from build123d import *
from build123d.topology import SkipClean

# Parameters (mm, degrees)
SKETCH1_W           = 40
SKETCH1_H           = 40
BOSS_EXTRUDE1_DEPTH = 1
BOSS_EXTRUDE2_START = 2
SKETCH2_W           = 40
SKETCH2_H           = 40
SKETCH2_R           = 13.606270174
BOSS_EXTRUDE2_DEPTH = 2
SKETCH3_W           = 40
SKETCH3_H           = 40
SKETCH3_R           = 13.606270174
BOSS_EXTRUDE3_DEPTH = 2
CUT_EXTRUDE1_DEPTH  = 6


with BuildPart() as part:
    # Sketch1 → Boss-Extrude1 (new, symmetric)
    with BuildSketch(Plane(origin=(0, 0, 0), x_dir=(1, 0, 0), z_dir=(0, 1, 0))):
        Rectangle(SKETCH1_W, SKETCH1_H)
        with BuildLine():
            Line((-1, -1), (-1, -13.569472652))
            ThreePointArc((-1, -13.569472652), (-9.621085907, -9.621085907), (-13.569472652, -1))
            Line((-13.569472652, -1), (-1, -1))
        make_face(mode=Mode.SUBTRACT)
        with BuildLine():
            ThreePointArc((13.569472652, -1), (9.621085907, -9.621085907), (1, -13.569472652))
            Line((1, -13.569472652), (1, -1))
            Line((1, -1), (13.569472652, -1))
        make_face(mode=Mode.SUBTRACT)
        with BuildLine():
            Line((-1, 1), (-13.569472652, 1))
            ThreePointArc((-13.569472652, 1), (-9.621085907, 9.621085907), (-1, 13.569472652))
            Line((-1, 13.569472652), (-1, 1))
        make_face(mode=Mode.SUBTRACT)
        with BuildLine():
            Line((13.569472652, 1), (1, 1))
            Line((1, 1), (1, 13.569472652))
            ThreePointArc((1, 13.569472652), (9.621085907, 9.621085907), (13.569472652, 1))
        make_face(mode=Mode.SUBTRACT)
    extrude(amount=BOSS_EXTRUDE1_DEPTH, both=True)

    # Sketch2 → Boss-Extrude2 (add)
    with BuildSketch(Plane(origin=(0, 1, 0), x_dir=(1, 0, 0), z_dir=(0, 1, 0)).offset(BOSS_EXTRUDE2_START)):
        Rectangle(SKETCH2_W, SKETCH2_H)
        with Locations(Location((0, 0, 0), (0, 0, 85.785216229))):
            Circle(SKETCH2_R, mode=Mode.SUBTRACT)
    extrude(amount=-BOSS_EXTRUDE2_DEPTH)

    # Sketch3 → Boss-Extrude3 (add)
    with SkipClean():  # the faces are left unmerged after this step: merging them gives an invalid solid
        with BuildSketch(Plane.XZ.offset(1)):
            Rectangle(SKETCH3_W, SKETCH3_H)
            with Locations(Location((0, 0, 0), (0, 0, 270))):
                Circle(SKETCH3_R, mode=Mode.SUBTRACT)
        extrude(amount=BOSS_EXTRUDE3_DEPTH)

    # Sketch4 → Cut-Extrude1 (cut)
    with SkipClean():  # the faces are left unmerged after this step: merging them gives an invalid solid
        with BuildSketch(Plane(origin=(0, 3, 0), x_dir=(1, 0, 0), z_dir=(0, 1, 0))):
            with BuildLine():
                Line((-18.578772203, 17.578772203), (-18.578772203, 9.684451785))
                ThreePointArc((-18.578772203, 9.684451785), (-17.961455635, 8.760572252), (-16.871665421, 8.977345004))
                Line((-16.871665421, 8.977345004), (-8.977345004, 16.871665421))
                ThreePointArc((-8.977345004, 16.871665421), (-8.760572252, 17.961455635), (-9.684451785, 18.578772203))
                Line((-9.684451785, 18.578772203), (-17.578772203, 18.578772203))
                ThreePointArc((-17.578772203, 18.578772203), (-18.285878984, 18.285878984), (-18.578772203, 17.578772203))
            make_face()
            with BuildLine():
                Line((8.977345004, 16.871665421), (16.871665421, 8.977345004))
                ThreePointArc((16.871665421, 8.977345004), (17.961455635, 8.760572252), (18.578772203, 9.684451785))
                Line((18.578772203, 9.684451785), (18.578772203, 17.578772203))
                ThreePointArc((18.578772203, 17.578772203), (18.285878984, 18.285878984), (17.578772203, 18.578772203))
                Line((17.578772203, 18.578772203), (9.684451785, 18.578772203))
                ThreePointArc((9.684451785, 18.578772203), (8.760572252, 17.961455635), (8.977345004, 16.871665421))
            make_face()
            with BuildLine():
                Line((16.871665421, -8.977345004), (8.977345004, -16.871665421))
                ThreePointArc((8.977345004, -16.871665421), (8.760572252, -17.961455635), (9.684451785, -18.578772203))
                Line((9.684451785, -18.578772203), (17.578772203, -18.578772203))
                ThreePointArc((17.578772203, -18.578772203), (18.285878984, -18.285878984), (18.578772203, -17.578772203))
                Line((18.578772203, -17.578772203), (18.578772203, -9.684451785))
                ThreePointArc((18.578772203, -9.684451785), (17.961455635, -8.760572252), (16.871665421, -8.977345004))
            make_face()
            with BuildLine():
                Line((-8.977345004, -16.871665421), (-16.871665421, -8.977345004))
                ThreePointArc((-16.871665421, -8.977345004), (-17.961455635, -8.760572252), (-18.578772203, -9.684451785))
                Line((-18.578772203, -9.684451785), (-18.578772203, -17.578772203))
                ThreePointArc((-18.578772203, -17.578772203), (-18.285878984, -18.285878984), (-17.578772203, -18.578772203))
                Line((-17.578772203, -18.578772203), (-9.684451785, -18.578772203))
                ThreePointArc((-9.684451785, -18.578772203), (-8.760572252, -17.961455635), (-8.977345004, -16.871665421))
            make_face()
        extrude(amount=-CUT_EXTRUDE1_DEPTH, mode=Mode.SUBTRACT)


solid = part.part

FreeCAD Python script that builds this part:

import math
import FreeCAD as App
import Part
import Sketcher
from FreeCAD import Vector


def add_polygon(sketch, points):
    """Adds a closed chain of lines whose ends are joined by coincident constraints."""
    first, n = sketch.GeometryCount, len(points)
    for a, b in zip(points, points[1:] + points[:1]):
        sketch.addGeometry(Part.LineSegment(App.Vector(*a, 0), App.Vector(*b, 0)), False)
    for i in range(n):
        sketch.addConstraint(Sketcher.Constraint("Coincident", first + i, 2, first + (i + 1) % n, 1))

doc = App.newDocument("Part")
body = doc.addObject("PartDesign::Body", "Body")

# Sketch on XZ plane
sketch1 = body.newObject("Sketcher::SketchObject", "Sketch")
sketch1.AttachmentSupport = (doc.getObject("XZ_Plane"), [""])
sketch1.MapMode = "FlatFace"
add_polygon(sketch1, [(-20, -20), (-20, 20), (20, 20), (20, -20)])  # lines 0-3
sketch1.addGeometry(Part.LineSegment(Vector(-13.569473, 1, 0), Vector(-1, 1, 0)), False)  # 4
sketch1.addGeometry(Part.LineSegment(Vector(-1, 1, 0), Vector(-1, 13.569473, 0)), False)  # 5
sketch1.addGeometry(Part.ArcOfCircle(Part.Circle(Vector(0, 0, 0), Vector(0, 0, 1), 13.60627), math.radians(94.214784), math.radians(175.785216)), False)  # 6
sketch1.addGeometry(Part.LineSegment(Vector(1, 1, 0), Vector(13.569473, 1, 0)), False)  # 7
sketch1.addGeometry(Part.ArcOfCircle(Part.Circle(Vector(0, 0, 0), Vector(0, 0, 1), 13.60627), math.radians(4.214784), math.radians(85.785216)), False)  # 8
sketch1.addGeometry(Part.LineSegment(Vector(1, 13.569473, 0), Vector(1, 1, 0)), False)  # 9
sketch1.addGeometry(Part.LineSegment(Vector(-1, -13.569473, 0), Vector(-1, -1, 0)), False)  # 10
sketch1.addGeometry(Part.LineSegment(Vector(-1, -1, 0), Vector(-13.569473, -1, 0)), False)  # 11
sketch1.addGeometry(Part.ArcOfCircle(Part.Circle(Vector(0, 0, 0), Vector(0, 0, 1), 13.60627), math.radians(-175.785216), math.radians(-94.214784)), False)  # 12
sketch1.addGeometry(Part.ArcOfCircle(Part.Circle(Vector(0, 0, 0), Vector(0, 0, 1), 13.60627), math.radians(-85.785216), math.radians(-4.214784)), False)  # 13
sketch1.addGeometry(Part.LineSegment(Vector(13.569473, -1, 0), Vector(1, -1, 0)), False)  # 14
sketch1.addGeometry(Part.LineSegment(Vector(1, -1, 0), Vector(1, -13.569473, 0)), False)  # 15
sketch1.addConstraint([
    Sketcher.Constraint("Coincident", 4, 2, 5, 1),
    Sketcher.Constraint("Coincident", 5, 2, 6, 1),
    Sketcher.Constraint("Coincident", 6, 2, 4, 1),
    Sketcher.Constraint("Coincident", 7, 2, 8, 1),
    Sketcher.Constraint("Coincident", 8, 2, 9, 1),
    Sketcher.Constraint("Coincident", 9, 2, 7, 1),
    Sketcher.Constraint("Coincident", 10, 2, 11, 1),
    Sketcher.Constraint("Coincident", 11, 2, 12, 1),
    Sketcher.Constraint("Coincident", 12, 2, 10, 1),
    Sketcher.Constraint("Coincident", 13, 2, 14, 1),
    Sketcher.Constraint("Coincident", 14, 2, 15, 1),
    Sketcher.Constraint("Coincident", 15, 2, 13, 1),
    Sketcher.Constraint("Vertical", 0),
    Sketcher.Constraint("Horizontal", 1),
    Sketcher.Constraint("Vertical", 2),
    Sketcher.Constraint("Horizontal", 3),
    Sketcher.Constraint("Horizontal", 4),
    Sketcher.Constraint("Vertical", 5),
    Sketcher.Constraint("Horizontal", 7),
    Sketcher.Constraint("Vertical", 9),
    Sketcher.Constraint("Vertical", 10),
    Sketcher.Constraint("Horizontal", 11),
    Sketcher.Constraint("Horizontal", 14),
    Sketcher.Constraint("Vertical", 15),
    Sketcher.Constraint("Coincident", 6, 3, -1, 1),
    Sketcher.Constraint("Coincident", 8, 3, -1, 1),
    Sketcher.Constraint("Coincident", 12, 3, -1, 1),
    Sketcher.Constraint("Coincident", 13, 3, -1, 1),
    Sketcher.Constraint("Equal", 6, 8),
    Sketcher.Constraint("Equal", 8, 12),
    Sketcher.Constraint("Equal", 12, 13),
    Sketcher.Constraint("Symmetric", 0, 2, 2, 2, -1, 1),
    Sketcher.Constraint("Symmetric", 9, 2, 10, 2, -1, 1),
    Sketcher.Constraint("Symmetric", 4, 2, 14, 2, -1, 1),
    Sketcher.Constraint("Symmetric", 4, 2, 9, 2, -2),
    Sketcher.Constraint("Equal", 3, 0),
    Sketcher.Constraint("Equal", 14, 5),
    Sketcher.Constraint("DistanceX", 1, 1, 1, 2, 40.0),
    Sketcher.Constraint("DistanceX", 4, 2, -1, 1, 1.0),
    Sketcher.Constraint("Radius", 6, 13.60627),
])
pad1 = body.newObject("PartDesign::Pad", "Pad")
pad1.Profile = sketch1
pad1.Length = 2
pad1.Midplane = True

# Sketch on XZ plane
sketch2 = body.newObject("Sketcher::SketchObject", "Sketch001")
sketch2.AttachmentSupport = (doc.getObject("XZ_Plane"), [""])
sketch2.MapMode = "FlatFace"
sketch2.AttachmentOffset = App.Placement(Vector(0, 0, -3), App.Rotation())
add_polygon(sketch2, [(-20, -20), (-20, 20), (20, 20), (20, -20)])  # lines 0-3
sketch2.addGeometry(Part.Circle(Vector(0, 0, 0), Vector(0, 0, 1), 13.60627), False)  # 4
sketch2.addConstraint([
    Sketcher.Constraint("Vertical", 0),
    Sketcher.Constraint("Horizontal", 1),
    Sketcher.Constraint("Vertical", 2),
    Sketcher.Constraint("Horizontal", 3),
    Sketcher.Constraint("Coincident", 4, 3, -1, 1),
    Sketcher.Constraint("Symmetric", 0, 2, 2, 2, -1, 1),
    Sketcher.Constraint("Equal", 3, 0),
    Sketcher.Constraint("DistanceX", 1, 1, 1, 2, 40.0),
    Sketcher.Constraint("Diameter", 4, 27.21254),
])
pad2 = body.newObject("PartDesign::Pad", "Pad001")
pad2.Profile = sketch2
pad2.Length = 2

# Sketch on XZ plane
sketch3 = body.newObject("Sketcher::SketchObject", "Sketch002")
sketch3.AttachmentSupport = (doc.getObject("XZ_Plane"), [""])
sketch3.MapMode = "FlatFace"
sketch3.AttachmentOffset = App.Placement(Vector(0, 0, 1), App.Rotation())
add_polygon(sketch3, [(-20, 20), (-20, -20), (20, -20), (20, 20)])  # lines 0-3
sketch3.addGeometry(Part.Circle(Vector(0, 0, 0), Vector(0, 0, 1), 13.60627), False)  # 4
sketch3.addConstraint([
    Sketcher.Constraint("Vertical", 0),
    Sketcher.Constraint("Horizontal", 1),
    Sketcher.Constraint("Vertical", 2),
    Sketcher.Constraint("Horizontal", 3),
    Sketcher.Constraint("Coincident", 4, 3, -1, 1),
    Sketcher.Constraint("Symmetric", 0, 2, 2, 2, -1, 1),
    Sketcher.Constraint("Equal", 3, 0),
    Sketcher.Constraint("DistanceX", 1, 1, 1, 2, 40.0),
    Sketcher.Constraint("Diameter", 4, 27.21254),
])
pad3 = body.newObject("PartDesign::Pad", "Pad002")
pad3.Profile = sketch3
pad3.Length = 2

# Sketch on XZ plane
sketch4 = body.newObject("Sketcher::SketchObject", "Sketch003")
sketch4.AttachmentSupport = (doc.getObject("XZ_Plane"), [""])
sketch4.MapMode = "FlatFace"
sketch4.AttachmentOffset = App.Placement(Vector(0, 0, -3), App.Rotation())
sketch4.addGeometry([
    Part.LineSegment(Vector(-18.578772, -17.578772, 0), Vector(-18.578772, -9.684452, 0)),  # 0
    Part.ArcOfCircle(Part.Circle(Vector(-17.578772, -9.684452, 0), Vector(0, 0, 1), 1), math.radians(45), math.radians(180)),  # 1
    Part.LineSegment(Vector(-16.871665, -8.977345, 0), Vector(-8.977345, -16.871665, 0)),  # 2
    Part.ArcOfCircle(Part.Circle(Vector(-9.684452, -17.578772, 0), Vector(0, 0, 1), 1), math.radians(-90), math.radians(45)),  # 3
    Part.LineSegment(Vector(-9.684452, -18.578772, 0), Vector(-17.578772, -18.578772, 0)),  # 4
    Part.ArcOfCircle(Part.Circle(Vector(-17.578772, -17.578772, 0), Vector(0, 0, 1), 1), math.radians(-180), math.radians(-90)),  # 5
    Part.LineSegment(Vector(8.977345, -16.871665, 0), Vector(16.871665, -8.977345, 0)),  # 6
    Part.ArcOfCircle(Part.Circle(Vector(17.578772, -9.684452, 0), Vector(0, 0, 1), 1), math.radians(0), math.radians(135)),  # 7
    Part.LineSegment(Vector(18.578772, -9.684452, 0), Vector(18.578772, -17.578772, 0)),  # 8
    Part.ArcOfCircle(Part.Circle(Vector(17.578772, -17.578772, 0), Vector(0, 0, 1), 1), math.radians(-90), math.radians(0)),  # 9
    Part.LineSegment(Vector(17.578772, -18.578772, 0), Vector(9.684452, -18.578772, 0)),  # 10
    Part.ArcOfCircle(Part.Circle(Vector(9.684452, -17.578772, 0), Vector(0, 0, 1), 1), math.radians(135), math.radians(270)),  # 11
    Part.LineSegment(Vector(16.871665, 8.977345, 0), Vector(8.977345, 16.871665, 0)),  # 12
    Part.ArcOfCircle(Part.Circle(Vector(9.684452, 17.578772, 0), Vector(0, 0, 1), 1), math.radians(90), math.radians(225)),  # 13
    Part.LineSegment(Vector(9.684452, 18.578772, 0), Vector(17.578772, 18.578772, 0)),  # 14
    Part.ArcOfCircle(Part.Circle(Vector(17.578772, 17.578772, 0), Vector(0, 0, 1), 1), math.radians(0), math.radians(90)),  # 15
    Part.LineSegment(Vector(18.578772, 17.578772, 0), Vector(18.578772, 9.684452, 0)),  # 16
    Part.ArcOfCircle(Part.Circle(Vector(17.578772, 9.684452, 0), Vector(0, 0, 1), 1), math.radians(-135), math.radians(0)),  # 17
    Part.LineSegment(Vector(-8.977345, 16.871665, 0), Vector(-16.871665, 8.977345, 0)),  # 18
    Part.ArcOfCircle(Part.Circle(Vector(-17.578772, 9.684452, 0), Vector(0, 0, 1), 1), math.radians(180), math.radians(315)),  # 19
    Part.LineSegment(Vector(-18.578772, 9.684452, 0), Vector(-18.578772, 17.578772, 0)),  # 20
    Part.ArcOfCircle(Part.Circle(Vector(-17.578772, 17.578772, 0), Vector(0, 0, 1), 1), math.radians(90), math.radians(180)),  # 21
    Part.LineSegment(Vector(-17.578772, 18.578772, 0), Vector(-9.684452, 18.578772, 0)),  # 22
    Part.ArcOfCircle(Part.Circle(Vector(-9.684452, 17.578772, 0), Vector(0, 0, 1), 1), math.radians(-45), math.radians(90)),  # 23
], False)
sketch4.addConstraint([
    Sketcher.Constraint("Tangent", 0, 2, 1, 2),
    Sketcher.Constraint("Tangent", 1, 1, 2, 1),
    Sketcher.Constraint("Tangent", 2, 2, 3, 2),
    Sketcher.Constraint("Tangent", 3, 1, 4, 1),
    Sketcher.Constraint("Tangent", 4, 2, 5, 2),
    Sketcher.Constraint("Tangent", 5, 1, 0, 1),
    Sketcher.Constraint("Tangent", 6, 2, 7, 2),
    Sketcher.Constraint("Tangent", 7, 1, 8, 1),
    Sketcher.Constraint("Tangent", 8, 2, 9, 2),
    Sketcher.Constraint("Tangent", 9, 1, 10, 1),
    Sketcher.Constraint("Tangent", 10, 2, 11, 2),
    Sketcher.Constraint("Tangent", 11, 1, 6, 1),
    Sketcher.Constraint("Tangent", 12, 2, 13, 2),
    Sketcher.Constraint("Tangent", 13, 1, 14, 1),
    Sketcher.Constraint("Tangent", 14, 2, 15, 2),
    Sketcher.Constraint("Tangent", 15, 1, 16, 1),
    Sketcher.Constraint("Tangent", 16, 2, 17, 2),
    Sketcher.Constraint("Tangent", 17, 1, 12, 1),
    Sketcher.Constraint("Tangent", 18, 2, 19, 2),
    Sketcher.Constraint("Tangent", 19, 1, 20, 1),
    Sketcher.Constraint("Tangent", 20, 2, 21, 2),
    Sketcher.Constraint("Tangent", 21, 1, 22, 1),
    Sketcher.Constraint("Tangent", 22, 2, 23, 2),
    Sketcher.Constraint("Tangent", 23, 1, 18, 1),
    Sketcher.Constraint("Vertical", 0),
    Sketcher.Constraint("Horizontal", 4),
    Sketcher.Constraint("Vertical", 8),
    Sketcher.Constraint("Horizontal", 10),
    Sketcher.Constraint("Horizontal", 14),
    Sketcher.Constraint("Vertical", 16),
    Sketcher.Constraint("Vertical", 20),
    Sketcher.Constraint("Horizontal", 22),
    Sketcher.Constraint("Equal", 1, 3),
    Sketcher.Constraint("Equal", 3, 5),
    Sketcher.Constraint("Equal", 5, 7),
    Sketcher.Constraint("Equal", 7, 9),
    Sketcher.Constraint("Equal", 9, 11),
    Sketcher.Constraint("Equal", 11, 13),
    Sketcher.Constraint("Equal", 13, 15),
    Sketcher.Constraint("Equal", 15, 17),
    Sketcher.Constraint("Equal", 17, 19),
    Sketcher.Constraint("Equal", 19, 21),
    Sketcher.Constraint("Equal", 21, 23),
    Sketcher.Constraint("Symmetric", 3, 3, 13, 3, -1, 1),
    Sketcher.Constraint("Symmetric", 1, 3, 17, 3, -1, 1),
    Sketcher.Constraint("Symmetric", 7, 3, 19, 3, -1, 1),
    Sketcher.Constraint("Symmetric", 11, 3, 23, 3, -1, 1),
    Sketcher.Constraint("Symmetric", 1, 3, 7, 3, -2),
    Sketcher.Constraint("Symmetric", 3, 3, 11, 3, -2),
    Sketcher.Constraint("Perpendicular", 2, 6),
    Sketcher.Constraint("Radius", 1, 1.0),
    Sketcher.Constraint("DistanceX", 4, 2, 4, 1, 7.89432),
    Sketcher.Constraint("DistanceY", 1, 3, -1, 1, 9.684452),
    Sketcher.Constraint("DistanceX", 3, 3, -1, 1, 9.684452),
])
pocket1 = body.newObject("PartDesign::Pocket", "Pocket")
pocket1.Profile = sketch4
pocket1.Length = 6
pocket1.Reversed = True

doc.recompute()
